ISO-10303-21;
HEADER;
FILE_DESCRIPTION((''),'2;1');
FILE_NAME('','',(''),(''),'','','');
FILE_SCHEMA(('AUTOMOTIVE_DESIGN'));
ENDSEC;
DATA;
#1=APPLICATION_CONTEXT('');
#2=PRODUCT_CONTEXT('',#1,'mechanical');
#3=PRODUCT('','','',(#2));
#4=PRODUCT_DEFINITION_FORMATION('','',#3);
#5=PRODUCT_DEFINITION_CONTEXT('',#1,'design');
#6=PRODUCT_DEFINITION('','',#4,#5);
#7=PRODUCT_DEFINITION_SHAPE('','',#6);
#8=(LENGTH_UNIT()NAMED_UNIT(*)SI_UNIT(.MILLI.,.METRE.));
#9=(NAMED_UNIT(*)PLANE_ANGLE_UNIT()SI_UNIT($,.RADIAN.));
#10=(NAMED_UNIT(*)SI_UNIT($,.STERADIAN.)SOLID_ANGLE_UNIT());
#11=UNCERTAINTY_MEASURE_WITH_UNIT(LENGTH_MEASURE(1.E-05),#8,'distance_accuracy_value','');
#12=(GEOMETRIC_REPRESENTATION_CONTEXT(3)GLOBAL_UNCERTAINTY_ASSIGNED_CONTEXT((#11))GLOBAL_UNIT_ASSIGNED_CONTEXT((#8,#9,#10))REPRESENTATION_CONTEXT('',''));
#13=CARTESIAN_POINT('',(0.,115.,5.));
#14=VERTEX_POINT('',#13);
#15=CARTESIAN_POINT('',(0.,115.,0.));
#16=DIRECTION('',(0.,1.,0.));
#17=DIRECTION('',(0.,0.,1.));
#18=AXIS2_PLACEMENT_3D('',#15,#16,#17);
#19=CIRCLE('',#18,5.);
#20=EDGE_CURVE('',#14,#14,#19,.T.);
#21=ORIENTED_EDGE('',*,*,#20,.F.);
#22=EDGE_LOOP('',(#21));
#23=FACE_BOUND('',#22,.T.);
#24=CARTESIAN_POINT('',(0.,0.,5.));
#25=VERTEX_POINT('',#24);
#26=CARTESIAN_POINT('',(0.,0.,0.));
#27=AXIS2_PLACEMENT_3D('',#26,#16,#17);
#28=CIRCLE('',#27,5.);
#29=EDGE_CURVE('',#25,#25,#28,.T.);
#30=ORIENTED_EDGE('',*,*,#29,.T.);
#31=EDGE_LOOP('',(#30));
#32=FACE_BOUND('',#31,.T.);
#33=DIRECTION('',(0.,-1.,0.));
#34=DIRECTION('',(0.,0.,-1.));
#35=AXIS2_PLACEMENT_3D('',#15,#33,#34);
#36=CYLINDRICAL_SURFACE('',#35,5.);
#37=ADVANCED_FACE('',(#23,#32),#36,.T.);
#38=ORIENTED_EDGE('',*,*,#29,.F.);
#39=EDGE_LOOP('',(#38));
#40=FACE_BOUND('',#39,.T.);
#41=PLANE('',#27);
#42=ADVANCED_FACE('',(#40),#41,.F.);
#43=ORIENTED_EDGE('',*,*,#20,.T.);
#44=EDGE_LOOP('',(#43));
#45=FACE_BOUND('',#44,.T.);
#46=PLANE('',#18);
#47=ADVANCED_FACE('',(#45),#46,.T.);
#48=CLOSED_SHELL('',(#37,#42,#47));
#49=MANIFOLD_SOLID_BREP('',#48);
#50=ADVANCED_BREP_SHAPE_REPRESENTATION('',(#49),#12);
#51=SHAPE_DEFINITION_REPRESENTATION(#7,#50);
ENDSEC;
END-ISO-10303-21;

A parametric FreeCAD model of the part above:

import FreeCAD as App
import Part
import Sketcher
Q = App.Units.Quantity

doc = App.newDocument("Part")
params = doc.addObject("Spreadsheet::Sheet", "Params")
for row, (alias, value) in enumerate([
    ("sketch1_diameter", "10 mm"),
    ("pad1_length", "115 mm"),
], start=1):
    params.set(f"A{row}", alias)
    params.set(f"B{row}", "=" + value)
    params.setAlias(f"B{row}", alias)

body = doc.addObject("PartDesign::Body", "Body")

# Sketch on XZ plane
sketch1 = body.newObject("Sketcher::SketchObject", "Sketch")
sketch1.AttachmentSupport = (doc.getObject("XZ_Plane"), [""])
sketch1.MapMode = "FlatFace"
sketch1.addGeometry(Part.Circle(App.Vector(0, 0, 0), App.Vector(0, 0, 1), 5), False)
sketch1.addConstraint(Sketcher.Constraint("Coincident", 0, 3, -1, 1))
sketch1.addConstraint(Sketcher.Constraint("Diameter", 0, Q("10 mm")))
sketch1.setExpression("Constraints[1]", "Params.sketch1_diameter")
pad1 = body.newObject("PartDesign::Pad", "Pad")
pad1.Profile = sketch1
pad1.setExpression("Length", "Params.pad1_length")
pad1.Reversed = True

doc.recompute()
